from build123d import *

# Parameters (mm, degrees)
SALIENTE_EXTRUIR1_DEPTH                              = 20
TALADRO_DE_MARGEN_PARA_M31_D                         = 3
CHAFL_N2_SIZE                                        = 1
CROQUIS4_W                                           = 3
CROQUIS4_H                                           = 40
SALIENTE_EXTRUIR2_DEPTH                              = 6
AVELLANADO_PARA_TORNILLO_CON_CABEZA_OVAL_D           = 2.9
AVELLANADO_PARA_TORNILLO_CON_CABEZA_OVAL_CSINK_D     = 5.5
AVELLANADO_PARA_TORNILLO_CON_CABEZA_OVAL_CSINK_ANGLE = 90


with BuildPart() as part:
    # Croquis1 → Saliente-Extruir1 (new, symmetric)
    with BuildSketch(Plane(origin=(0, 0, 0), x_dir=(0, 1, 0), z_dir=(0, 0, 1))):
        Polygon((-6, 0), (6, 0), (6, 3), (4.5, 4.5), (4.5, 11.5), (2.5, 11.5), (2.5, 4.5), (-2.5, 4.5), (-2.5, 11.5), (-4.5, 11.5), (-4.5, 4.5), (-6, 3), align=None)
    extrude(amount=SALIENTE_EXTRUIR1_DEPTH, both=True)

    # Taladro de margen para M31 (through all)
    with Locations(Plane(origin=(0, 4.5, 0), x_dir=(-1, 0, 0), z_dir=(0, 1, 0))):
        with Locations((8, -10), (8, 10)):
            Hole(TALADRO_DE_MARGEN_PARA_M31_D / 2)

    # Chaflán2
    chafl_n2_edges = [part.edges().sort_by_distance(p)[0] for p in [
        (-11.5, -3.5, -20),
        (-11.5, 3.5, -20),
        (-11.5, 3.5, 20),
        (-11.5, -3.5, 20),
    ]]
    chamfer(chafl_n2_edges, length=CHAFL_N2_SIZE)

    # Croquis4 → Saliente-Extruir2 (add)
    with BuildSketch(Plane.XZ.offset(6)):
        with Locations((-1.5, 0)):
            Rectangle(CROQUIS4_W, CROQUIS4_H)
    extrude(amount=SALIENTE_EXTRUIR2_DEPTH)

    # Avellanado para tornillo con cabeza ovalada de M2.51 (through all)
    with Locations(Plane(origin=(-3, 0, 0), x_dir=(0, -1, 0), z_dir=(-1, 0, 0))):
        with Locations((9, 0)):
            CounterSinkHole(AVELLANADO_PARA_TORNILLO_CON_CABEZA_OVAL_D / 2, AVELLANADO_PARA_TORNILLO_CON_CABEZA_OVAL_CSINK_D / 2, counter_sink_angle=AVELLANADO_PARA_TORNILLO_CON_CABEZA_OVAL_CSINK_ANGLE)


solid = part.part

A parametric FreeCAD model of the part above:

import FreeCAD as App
import Part
import Sketcher
from FreeCAD import Vector
Q = App.Units.Quantity


def edges_at(feature, points):
    """Names of the edges that pass closest to the given points."""
    edges = feature.Shape.Edges
    near = lambda p: min(range(len(edges)), key=lambda i: edges[i].distToShape(Part.Vertex(*p))[0])
    return sorted({f"Edge{near(p) + 1}" for p in points})

doc = App.newDocument("Part")
params = doc.addObject("Spreadsheet::Sheet", "Params")
for row, (alias, value) in enumerate([
    ("sketch1_width", "3 mm"),
    ("sketch1_width2", "7 mm"),
    ("sketch1_height", "12 mm"),
    ("sketch1_height2", "2 mm"),
    ("sketch1_height3", "5 mm"),
    ("pad1_length", "40 mm"),
    ("sketch2_diameter", "3 mm"),
    ("hole_diameter", "3 mm"),
    ("chamfer_size", "1 mm"),
    ("sketch3_width", "3 mm"),
    ("sketch3_height", "40 mm"),
    ("pad2_length", "6 mm"),
    ("sketch4_diameter", "2.9 mm"),
    ("hole2_diameter", "2.9 mm"),
    ("hole2_csink_diameter", "5.5 mm"),
], start=1):
    params.set(f"A{row}", alias)
    params.set(f"B{row}", "=" + value)
    params.setAlias(f"B{row}", alias)

body = doc.addObject("PartDesign::Body", "Body")

# Sketch on XY plane
sketch1 = body.newObject("Sketcher::SketchObject", "Sketch")
sketch1.AttachmentSupport = (doc.getObject("XY_Plane"), [""])
sketch1.MapMode = "FlatFace"
sketch1.addGeometry([
    Part.LineSegment(Vector(0, -6, 0), Vector(0, 6, 0)),  # 0
    Part.LineSegment(Vector(0, 6, 0), Vector(-3, 6, 0)),  # 1
    Part.LineSegment(Vector(-3, 6, 0), Vector(-4.5, 4.5, 0)),  # 2
    Part.LineSegment(Vector(-4.5, 4.5, 0), Vector(-11.5, 4.5, 0)),  # 3
    Part.LineSegment(Vector(-11.5, 4.5, 0), Vector(-11.5, 2.5, 0)),  # 4
    Part.LineSegment(Vector(-11.5, 2.5, 0), Vector(-4.5, 2.5, 0)),  # 5
    Part.LineSegment(Vector(-4.5, 2.5, 0), Vector(-4.5, -2.5, 0)),  # 6
    Part.LineSegment(Vector(-4.5, -2.5, 0), Vector(-11.5, -2.5, 0)),  # 7
    Part.LineSegment(Vector(-11.5, -2.5, 0), Vector(-11.5, -4.5, 0)),  # 8
    Part.LineSegment(Vector(-11.5, -4.5, 0), Vector(-4.5, -4.5, 0)),  # 9
    Part.LineSegment(Vector(-4.5, -4.5, 0), Vector(-3, -6, 0)),  # 10
    Part.LineSegment(Vector(-3, -6, 0), Vector(0, -6, 0)),  # 11
], False)
sketch1.addConstraint([
    Sketcher.Constraint("Coincident", 0, 2, 1, 1),
    Sketcher.Constraint("Coincident", 1, 2, 2, 1),
    Sketcher.Constraint("Coincident", 2, 2, 3, 1),
    Sketcher.Constraint("Coincident", 3, 2, 4, 1),
    Sketcher.Constraint("Coincident", 4, 2, 5, 1),
    Sketcher.Constraint("Coincident", 5, 2, 6, 1),
    Sketcher.Constraint("Coincident", 6, 2, 7, 1),
    Sketcher.Constraint("Coincident", 7, 2, 8, 1),
    Sketcher.Constraint("Coincident", 8, 2, 9, 1),
    Sketcher.Constraint("Coincident", 9, 2, 10, 1),
    Sketcher.Constraint("Coincident", 10, 2, 11, 1),
    Sketcher.Constraint("Coincident", 11, 2, 0, 1),
    Sketcher.Constraint("Vertical", 0),
    Sketcher.Constraint("Horizontal", 1),
    Sketcher.Constraint("Horizontal", 3),
    Sketcher.Constraint("Vertical", 4),
    Sketcher.Constraint("Horizontal", 5),
    Sketcher.Constraint("Vertical", 6),
    Sketcher.Constraint("Horizontal", 7),
    Sketcher.Constraint("Vertical", 8),
    Sketcher.Constraint("Horizontal", 9),
    Sketcher.Constraint("Horizontal", 11),
    Sketcher.Constraint("Symmetric", 0, 2, 11, 2, -1, 1),
    Sketcher.Constraint("Symmetric", 4, 2, 7, 2, -1),
    Sketcher.Constraint("Symmetric", 2, 2, 9, 2, -1),
    Sketcher.Constraint("Perpendicular", 2, 10),
    Sketcher.Constraint("Vertical", 2, 2, 5, 2),
    Sketcher.Constraint("Vertical", 1, 2, 10, 2),
    Sketcher.Constraint("DistanceX", 1, 2, 1, 1, Q("3 mm")),
    Sketcher.Constraint("DistanceX", 3, 2, 3, 1, Q("7 mm")),
    Sketcher.Constraint("DistanceY", 0, 1, 0, 2, Q("12 mm")),
    Sketcher.Constraint("DistanceY", 4, 2, 4, 1, Q("2 mm")),
    Sketcher.Constraint("DistanceY", 6, 2, 6, 1, Q("5 mm")),
])
sketch1.setExpression("Constraints[28]", "Params.sketch1_width")
sketch1.setExpression("Constraints[29]", "Params.sketch1_width2")
sketch1.setExpression("Constraints[30]", "Params.sketch1_height")
sketch1.setExpression("Constraints[31]", "Params.sketch1_height2")
sketch1.setExpression("Constraints[32]", "Params.sketch1_height3")
pad1 = body.newObject("PartDesign::Pad", "Pad")
pad1.Profile = sketch1
pad1.setExpression("Length", "Params.pad1_length")
pad1.Midplane = True

# Sketch on XZ plane
sketch2 = body.newObject("Sketcher::SketchObject", "Sketch001")
sketch2.AttachmentSupport = (doc.getObject("XZ_Plane"), [""])
sketch2.MapMode = "FlatFace"
sketch2.AttachmentOffset = App.Placement(Vector(0, 0, -4.5), App.Rotation())
sketch2.addGeometry([
    Part.Circle(Vector(-8, -10, 0), Vector(0, 0, 1), 1.5),
    Part.Circle(Vector(-8, 10, 0), Vector(0, 0, 1), 1.5),
], False)
sketch2.addConstraint([
    Sketcher.Constraint("Equal", 0, 1),
    Sketcher.Constraint("Symmetric", 0, 3, 1, 3, -1),
    Sketcher.Constraint("Diameter", 0, Q("3 mm")),
    Sketcher.Constraint("DistanceX", 0, 3, -1, 1, Q("8 mm")),
    Sketcher.Constraint("DistanceY", 0, 3, -1, 1, Q("10 mm")),
])
sketch2.setExpression("Constraints[2]", "Params.sketch2_diameter")
doc.recompute()
hole = body.newObject("PartDesign::Hole", "Hole")
hole.Profile = sketch2
hole.ThreadType = "None"
hole.setExpression("Diameter", "Params.hole_diameter")
hole.DepthType = "ThroughAll"
hole.Reversed = True
doc.recompute()

chamfer = body.newObject("PartDesign::Chamfer", "Chamfer")
chamfer.Base = (hole, edges_at(hole, [
    (-11.5, -3.5, -20),
    (-11.5, 3.5, -20),
    (-11.5, 3.5, 20),
    (-11.5, -3.5, 20),
]))
chamfer.setExpression("Size", "Params.chamfer_size")

# Sketch on XZ plane
sketch3 = body.newObject("Sketcher::SketchObject", "Sketch002")
sketch3.AttachmentSupport = (doc.getObject("XZ_Plane"), [""])
sketch3.MapMode = "FlatFace"
sketch3.AttachmentOffset = App.Placement(Vector(0, 0, 6), App.Rotation())
sketch3.addGeometry([
    Part.LineSegment(Vector(-3, 20, 0), Vector(-3, -20, 0)),
    Part.LineSegment(Vector(-3, -20, 0), Vector(0, -20, 0)),
    Part.LineSegment(Vector(0, -20, 0), Vector(0, 20, 0)),
    Part.LineSegment(Vector(0, 20, 0), Vector(-3, 20, 0)),
], False)
sketch3.addConstraint([
    Sketcher.Constraint("Coincident", 0, 2, 1, 1),
    Sketcher.Constraint("Coincident", 1, 2, 2, 1),
    Sketcher.Constraint("Coincident", 2, 2, 3, 1),
    Sketcher.Constraint("Coincident", 3, 2, 0, 1),
    Sketcher.Constraint("Vertical", 0),
    Sketcher.Constraint("Horizontal", 1),
    Sketcher.Constraint("Vertical", 2),
    Sketcher.Constraint("Horizontal", 3),
    Sketcher.Constraint("Symmetric", 1, 2, 2, 2, -1, 1),
    Sketcher.Constraint("DistanceX", 1, 1, 1, 2, Q("3 mm")),
    Sketcher.Constraint("DistanceY", 0, 2, 0, 1, Q("40 mm")),
])
sketch3.setExpression("Constraints[9]", "Params.sketch3_width")
sketch3.setExpression("Constraints[10]", "Params.sketch3_height")
pad2 = body.newObject("PartDesign::Pad", "Pad001")
pad2.Profile = sketch3
pad2.setExpression("Length", "Params.pad2_length")

# Sketch on YZ plane
sketch4 = body.newObject("Sketcher::SketchObject", "Sketch003")
sketch4.AttachmentSupport = (doc.getObject("YZ_Plane"), [""])
sketch4.MapMode = "FlatFace"
sketch4.AttachmentOffset = App.Placement(Vector(0, 0, -3), App.Rotation())
sketch4.addGeometry(Part.Circle(Vector(-9, 0, 0), Vector(0, 0, 1), 1.4), False)
sketch4.addConstraint([
    Sketcher.Constraint("PointOnObject", 0, 3, -1),
    Sketcher.Constraint("Diameter", 0, Q("2.9 mm")),
    Sketcher.Constraint("DistanceX", 0, 3, -1, 1, Q("9 mm")),
])
sketch4.setExpression("Constraints[1]", "Params.sketch4_diameter")
doc.recompute()
hole2 = body.newObject("PartDesign::Hole", "Hole001")
hole2.Profile = sketch4
hole2.ThreadType = "None"
hole2.setExpression("Diameter", "Params.hole2_diameter")
hole2.DepthType = "ThroughAll"
hole2.HoleCutType = "Countersink"
hole2.setExpression("HoleCutDiameter", "Params.hole2_csink_diameter")
hole2.HoleCutCountersinkAngle = 90
hole2.Reversed = True

doc.recompute()
